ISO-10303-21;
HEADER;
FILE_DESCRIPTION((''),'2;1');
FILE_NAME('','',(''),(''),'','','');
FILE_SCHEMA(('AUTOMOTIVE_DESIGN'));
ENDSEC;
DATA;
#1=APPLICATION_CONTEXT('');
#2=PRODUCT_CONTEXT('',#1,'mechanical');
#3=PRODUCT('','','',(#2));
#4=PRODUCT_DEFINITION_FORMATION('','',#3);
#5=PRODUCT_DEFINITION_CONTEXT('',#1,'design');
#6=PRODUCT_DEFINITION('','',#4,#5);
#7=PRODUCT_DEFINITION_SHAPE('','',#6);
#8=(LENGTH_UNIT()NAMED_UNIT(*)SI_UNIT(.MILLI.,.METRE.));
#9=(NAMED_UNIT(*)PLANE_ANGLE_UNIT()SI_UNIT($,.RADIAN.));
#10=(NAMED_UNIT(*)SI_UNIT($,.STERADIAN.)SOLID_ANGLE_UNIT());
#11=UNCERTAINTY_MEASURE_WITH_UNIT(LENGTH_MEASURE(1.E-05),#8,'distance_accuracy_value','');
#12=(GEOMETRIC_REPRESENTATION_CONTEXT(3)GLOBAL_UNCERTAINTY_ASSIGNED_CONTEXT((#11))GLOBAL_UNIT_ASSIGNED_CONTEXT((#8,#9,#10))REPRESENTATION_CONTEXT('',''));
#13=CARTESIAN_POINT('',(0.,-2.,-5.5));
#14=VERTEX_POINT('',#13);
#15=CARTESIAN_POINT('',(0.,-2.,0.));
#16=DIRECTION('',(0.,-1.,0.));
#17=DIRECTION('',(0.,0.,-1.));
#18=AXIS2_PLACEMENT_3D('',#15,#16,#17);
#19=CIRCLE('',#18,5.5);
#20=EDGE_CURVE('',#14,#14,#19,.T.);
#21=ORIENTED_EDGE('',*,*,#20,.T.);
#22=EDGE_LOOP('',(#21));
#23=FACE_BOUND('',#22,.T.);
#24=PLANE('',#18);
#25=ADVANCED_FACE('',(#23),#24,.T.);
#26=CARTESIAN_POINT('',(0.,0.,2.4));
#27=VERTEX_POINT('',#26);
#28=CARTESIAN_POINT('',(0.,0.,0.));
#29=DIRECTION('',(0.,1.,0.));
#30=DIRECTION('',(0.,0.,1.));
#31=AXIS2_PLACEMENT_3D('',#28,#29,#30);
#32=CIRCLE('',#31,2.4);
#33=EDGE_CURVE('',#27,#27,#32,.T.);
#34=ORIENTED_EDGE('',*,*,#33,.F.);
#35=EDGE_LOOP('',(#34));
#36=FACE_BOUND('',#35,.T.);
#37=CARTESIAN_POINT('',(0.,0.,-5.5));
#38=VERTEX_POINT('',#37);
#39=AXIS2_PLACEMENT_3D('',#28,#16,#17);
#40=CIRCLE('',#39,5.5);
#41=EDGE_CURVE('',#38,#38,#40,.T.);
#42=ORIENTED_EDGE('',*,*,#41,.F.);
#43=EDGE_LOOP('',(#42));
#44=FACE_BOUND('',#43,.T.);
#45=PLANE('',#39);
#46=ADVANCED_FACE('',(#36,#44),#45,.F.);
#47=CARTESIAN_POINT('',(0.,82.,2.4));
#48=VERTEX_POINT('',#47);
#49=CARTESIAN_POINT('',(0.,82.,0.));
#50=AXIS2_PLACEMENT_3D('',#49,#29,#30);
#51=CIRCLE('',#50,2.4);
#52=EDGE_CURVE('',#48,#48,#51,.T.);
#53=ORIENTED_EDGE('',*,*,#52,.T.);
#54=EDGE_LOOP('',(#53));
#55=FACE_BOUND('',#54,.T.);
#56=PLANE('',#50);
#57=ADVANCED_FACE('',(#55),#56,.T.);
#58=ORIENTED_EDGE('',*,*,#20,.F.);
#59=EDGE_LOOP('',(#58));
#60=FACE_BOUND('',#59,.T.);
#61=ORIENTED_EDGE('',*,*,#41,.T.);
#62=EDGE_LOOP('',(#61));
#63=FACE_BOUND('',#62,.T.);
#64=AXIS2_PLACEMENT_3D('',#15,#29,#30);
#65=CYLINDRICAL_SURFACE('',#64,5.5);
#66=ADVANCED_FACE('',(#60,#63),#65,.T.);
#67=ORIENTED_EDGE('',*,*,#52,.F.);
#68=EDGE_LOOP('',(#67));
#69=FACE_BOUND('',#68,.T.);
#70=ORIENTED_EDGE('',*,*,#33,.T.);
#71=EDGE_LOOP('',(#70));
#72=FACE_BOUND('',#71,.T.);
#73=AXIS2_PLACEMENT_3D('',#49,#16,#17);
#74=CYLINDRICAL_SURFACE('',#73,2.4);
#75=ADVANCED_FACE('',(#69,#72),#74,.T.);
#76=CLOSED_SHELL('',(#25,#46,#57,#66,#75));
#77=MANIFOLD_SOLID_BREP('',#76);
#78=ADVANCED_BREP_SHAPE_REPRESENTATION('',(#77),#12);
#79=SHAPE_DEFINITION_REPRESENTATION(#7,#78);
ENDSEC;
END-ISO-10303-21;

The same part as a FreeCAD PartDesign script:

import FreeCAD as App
import Part
import Sketcher
from FreeCAD import Vector
Q = App.Units.Quantity

doc = App.newDocument("Part")
body = doc.addObject("PartDesign::Body", "Body")

sketch1 = doc.addObject("Sketcher::SketchObject", "Sketch")
body.addObject(sketch1)
sketch1.AttachmentSupport = (doc.XZ_Plane, [""])
sketch1.MapMode = "FlatFace"
sketch1.addGeometry(Part.Circle(Vector(0, 0, 0), Vector(0, 0, 1), 2.4), False)
sketch1.addConstraint([
    Sketcher.Constraint("Coincident", 0, 3, -1, 1),
    Sketcher.Constraint("Diameter", 0, Q("4.8 mm")),
])
pad1 = doc.addObject("PartDesign::Pad", "Pad")
body.addObject(pad1)
pad1.Profile = sketch1
pad1.Length = 82
pad1.Reversed = True

sketch2 = doc.addObject("Sketcher::SketchObject", "Sketch001")
body.addObject(sketch2)
sketch2.AttachmentSupport = (doc.XZ_Plane, [""])
sketch2.MapMode = "FlatFace"
sketch2.addGeometry(Part.Circle(Vector(0, 0, 0), Vector(0, 0, 1), 6), False)
sketch2.addConstraint([
    Sketcher.Constraint("Coincident", 0, 3, -1, 1),
    Sketcher.Constraint("Diameter", 0, Q("11 mm")),
])
pad2 = doc.addObject("PartDesign::Pad", "Pad001")
body.addObject(pad2)
pad2.Profile = sketch2
pad2.Length = 2

doc.recompute()
